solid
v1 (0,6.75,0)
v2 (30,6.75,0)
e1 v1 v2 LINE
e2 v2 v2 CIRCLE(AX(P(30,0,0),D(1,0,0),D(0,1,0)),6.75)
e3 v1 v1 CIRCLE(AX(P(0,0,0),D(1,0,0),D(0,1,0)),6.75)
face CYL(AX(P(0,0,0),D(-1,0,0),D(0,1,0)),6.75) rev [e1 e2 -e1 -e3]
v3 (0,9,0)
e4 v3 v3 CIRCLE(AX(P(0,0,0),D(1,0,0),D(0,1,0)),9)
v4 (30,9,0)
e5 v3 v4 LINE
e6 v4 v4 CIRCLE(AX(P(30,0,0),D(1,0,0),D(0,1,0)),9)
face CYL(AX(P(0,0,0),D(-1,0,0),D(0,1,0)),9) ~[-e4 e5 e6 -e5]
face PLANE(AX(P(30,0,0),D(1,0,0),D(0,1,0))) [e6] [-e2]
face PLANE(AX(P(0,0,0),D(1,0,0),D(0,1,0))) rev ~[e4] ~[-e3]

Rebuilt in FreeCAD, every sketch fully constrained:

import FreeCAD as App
import Part
import Sketcher
from FreeCAD import Vector
Q = App.Units.Quantity

doc = App.newDocument("Part")
body = doc.addObject("PartDesign::Body", "Body")

sketch1 = body.newObject("Sketcher::SketchObject", "Sketch")
sketch1.AttachmentSupport = (doc.getObject("YZ_Plane"), [""])
sketch1.MapMode = "FlatFace"
sketch1.addGeometry(Part.Circle(Vector(0, 0, 0), Vector(0, 0, 1), 9), False)
sketch1.addGeometry(Part.Circle(Vector(0, 0, 0), Vector(0, 0, 1), 7), False)
sketch1.addConstraint(Sketcher.Constraint("Coincident", 0, 3, -1, 1))
sketch1.addConstraint(Sketcher.Constraint("Coincident", 1, 3, -1, 1))
sketch1.addConstraint(Sketcher.Constraint("Diameter", 0, Q("18 mm")))
sketch1.addConstraint(Sketcher.Constraint("Diameter", 1, Q("13.5 mm")))
pad1 = body.newObject("PartDesign::Pad", "Pad")
pad1.Profile = sketch1
pad1.Length = 30

doc.recompute()
